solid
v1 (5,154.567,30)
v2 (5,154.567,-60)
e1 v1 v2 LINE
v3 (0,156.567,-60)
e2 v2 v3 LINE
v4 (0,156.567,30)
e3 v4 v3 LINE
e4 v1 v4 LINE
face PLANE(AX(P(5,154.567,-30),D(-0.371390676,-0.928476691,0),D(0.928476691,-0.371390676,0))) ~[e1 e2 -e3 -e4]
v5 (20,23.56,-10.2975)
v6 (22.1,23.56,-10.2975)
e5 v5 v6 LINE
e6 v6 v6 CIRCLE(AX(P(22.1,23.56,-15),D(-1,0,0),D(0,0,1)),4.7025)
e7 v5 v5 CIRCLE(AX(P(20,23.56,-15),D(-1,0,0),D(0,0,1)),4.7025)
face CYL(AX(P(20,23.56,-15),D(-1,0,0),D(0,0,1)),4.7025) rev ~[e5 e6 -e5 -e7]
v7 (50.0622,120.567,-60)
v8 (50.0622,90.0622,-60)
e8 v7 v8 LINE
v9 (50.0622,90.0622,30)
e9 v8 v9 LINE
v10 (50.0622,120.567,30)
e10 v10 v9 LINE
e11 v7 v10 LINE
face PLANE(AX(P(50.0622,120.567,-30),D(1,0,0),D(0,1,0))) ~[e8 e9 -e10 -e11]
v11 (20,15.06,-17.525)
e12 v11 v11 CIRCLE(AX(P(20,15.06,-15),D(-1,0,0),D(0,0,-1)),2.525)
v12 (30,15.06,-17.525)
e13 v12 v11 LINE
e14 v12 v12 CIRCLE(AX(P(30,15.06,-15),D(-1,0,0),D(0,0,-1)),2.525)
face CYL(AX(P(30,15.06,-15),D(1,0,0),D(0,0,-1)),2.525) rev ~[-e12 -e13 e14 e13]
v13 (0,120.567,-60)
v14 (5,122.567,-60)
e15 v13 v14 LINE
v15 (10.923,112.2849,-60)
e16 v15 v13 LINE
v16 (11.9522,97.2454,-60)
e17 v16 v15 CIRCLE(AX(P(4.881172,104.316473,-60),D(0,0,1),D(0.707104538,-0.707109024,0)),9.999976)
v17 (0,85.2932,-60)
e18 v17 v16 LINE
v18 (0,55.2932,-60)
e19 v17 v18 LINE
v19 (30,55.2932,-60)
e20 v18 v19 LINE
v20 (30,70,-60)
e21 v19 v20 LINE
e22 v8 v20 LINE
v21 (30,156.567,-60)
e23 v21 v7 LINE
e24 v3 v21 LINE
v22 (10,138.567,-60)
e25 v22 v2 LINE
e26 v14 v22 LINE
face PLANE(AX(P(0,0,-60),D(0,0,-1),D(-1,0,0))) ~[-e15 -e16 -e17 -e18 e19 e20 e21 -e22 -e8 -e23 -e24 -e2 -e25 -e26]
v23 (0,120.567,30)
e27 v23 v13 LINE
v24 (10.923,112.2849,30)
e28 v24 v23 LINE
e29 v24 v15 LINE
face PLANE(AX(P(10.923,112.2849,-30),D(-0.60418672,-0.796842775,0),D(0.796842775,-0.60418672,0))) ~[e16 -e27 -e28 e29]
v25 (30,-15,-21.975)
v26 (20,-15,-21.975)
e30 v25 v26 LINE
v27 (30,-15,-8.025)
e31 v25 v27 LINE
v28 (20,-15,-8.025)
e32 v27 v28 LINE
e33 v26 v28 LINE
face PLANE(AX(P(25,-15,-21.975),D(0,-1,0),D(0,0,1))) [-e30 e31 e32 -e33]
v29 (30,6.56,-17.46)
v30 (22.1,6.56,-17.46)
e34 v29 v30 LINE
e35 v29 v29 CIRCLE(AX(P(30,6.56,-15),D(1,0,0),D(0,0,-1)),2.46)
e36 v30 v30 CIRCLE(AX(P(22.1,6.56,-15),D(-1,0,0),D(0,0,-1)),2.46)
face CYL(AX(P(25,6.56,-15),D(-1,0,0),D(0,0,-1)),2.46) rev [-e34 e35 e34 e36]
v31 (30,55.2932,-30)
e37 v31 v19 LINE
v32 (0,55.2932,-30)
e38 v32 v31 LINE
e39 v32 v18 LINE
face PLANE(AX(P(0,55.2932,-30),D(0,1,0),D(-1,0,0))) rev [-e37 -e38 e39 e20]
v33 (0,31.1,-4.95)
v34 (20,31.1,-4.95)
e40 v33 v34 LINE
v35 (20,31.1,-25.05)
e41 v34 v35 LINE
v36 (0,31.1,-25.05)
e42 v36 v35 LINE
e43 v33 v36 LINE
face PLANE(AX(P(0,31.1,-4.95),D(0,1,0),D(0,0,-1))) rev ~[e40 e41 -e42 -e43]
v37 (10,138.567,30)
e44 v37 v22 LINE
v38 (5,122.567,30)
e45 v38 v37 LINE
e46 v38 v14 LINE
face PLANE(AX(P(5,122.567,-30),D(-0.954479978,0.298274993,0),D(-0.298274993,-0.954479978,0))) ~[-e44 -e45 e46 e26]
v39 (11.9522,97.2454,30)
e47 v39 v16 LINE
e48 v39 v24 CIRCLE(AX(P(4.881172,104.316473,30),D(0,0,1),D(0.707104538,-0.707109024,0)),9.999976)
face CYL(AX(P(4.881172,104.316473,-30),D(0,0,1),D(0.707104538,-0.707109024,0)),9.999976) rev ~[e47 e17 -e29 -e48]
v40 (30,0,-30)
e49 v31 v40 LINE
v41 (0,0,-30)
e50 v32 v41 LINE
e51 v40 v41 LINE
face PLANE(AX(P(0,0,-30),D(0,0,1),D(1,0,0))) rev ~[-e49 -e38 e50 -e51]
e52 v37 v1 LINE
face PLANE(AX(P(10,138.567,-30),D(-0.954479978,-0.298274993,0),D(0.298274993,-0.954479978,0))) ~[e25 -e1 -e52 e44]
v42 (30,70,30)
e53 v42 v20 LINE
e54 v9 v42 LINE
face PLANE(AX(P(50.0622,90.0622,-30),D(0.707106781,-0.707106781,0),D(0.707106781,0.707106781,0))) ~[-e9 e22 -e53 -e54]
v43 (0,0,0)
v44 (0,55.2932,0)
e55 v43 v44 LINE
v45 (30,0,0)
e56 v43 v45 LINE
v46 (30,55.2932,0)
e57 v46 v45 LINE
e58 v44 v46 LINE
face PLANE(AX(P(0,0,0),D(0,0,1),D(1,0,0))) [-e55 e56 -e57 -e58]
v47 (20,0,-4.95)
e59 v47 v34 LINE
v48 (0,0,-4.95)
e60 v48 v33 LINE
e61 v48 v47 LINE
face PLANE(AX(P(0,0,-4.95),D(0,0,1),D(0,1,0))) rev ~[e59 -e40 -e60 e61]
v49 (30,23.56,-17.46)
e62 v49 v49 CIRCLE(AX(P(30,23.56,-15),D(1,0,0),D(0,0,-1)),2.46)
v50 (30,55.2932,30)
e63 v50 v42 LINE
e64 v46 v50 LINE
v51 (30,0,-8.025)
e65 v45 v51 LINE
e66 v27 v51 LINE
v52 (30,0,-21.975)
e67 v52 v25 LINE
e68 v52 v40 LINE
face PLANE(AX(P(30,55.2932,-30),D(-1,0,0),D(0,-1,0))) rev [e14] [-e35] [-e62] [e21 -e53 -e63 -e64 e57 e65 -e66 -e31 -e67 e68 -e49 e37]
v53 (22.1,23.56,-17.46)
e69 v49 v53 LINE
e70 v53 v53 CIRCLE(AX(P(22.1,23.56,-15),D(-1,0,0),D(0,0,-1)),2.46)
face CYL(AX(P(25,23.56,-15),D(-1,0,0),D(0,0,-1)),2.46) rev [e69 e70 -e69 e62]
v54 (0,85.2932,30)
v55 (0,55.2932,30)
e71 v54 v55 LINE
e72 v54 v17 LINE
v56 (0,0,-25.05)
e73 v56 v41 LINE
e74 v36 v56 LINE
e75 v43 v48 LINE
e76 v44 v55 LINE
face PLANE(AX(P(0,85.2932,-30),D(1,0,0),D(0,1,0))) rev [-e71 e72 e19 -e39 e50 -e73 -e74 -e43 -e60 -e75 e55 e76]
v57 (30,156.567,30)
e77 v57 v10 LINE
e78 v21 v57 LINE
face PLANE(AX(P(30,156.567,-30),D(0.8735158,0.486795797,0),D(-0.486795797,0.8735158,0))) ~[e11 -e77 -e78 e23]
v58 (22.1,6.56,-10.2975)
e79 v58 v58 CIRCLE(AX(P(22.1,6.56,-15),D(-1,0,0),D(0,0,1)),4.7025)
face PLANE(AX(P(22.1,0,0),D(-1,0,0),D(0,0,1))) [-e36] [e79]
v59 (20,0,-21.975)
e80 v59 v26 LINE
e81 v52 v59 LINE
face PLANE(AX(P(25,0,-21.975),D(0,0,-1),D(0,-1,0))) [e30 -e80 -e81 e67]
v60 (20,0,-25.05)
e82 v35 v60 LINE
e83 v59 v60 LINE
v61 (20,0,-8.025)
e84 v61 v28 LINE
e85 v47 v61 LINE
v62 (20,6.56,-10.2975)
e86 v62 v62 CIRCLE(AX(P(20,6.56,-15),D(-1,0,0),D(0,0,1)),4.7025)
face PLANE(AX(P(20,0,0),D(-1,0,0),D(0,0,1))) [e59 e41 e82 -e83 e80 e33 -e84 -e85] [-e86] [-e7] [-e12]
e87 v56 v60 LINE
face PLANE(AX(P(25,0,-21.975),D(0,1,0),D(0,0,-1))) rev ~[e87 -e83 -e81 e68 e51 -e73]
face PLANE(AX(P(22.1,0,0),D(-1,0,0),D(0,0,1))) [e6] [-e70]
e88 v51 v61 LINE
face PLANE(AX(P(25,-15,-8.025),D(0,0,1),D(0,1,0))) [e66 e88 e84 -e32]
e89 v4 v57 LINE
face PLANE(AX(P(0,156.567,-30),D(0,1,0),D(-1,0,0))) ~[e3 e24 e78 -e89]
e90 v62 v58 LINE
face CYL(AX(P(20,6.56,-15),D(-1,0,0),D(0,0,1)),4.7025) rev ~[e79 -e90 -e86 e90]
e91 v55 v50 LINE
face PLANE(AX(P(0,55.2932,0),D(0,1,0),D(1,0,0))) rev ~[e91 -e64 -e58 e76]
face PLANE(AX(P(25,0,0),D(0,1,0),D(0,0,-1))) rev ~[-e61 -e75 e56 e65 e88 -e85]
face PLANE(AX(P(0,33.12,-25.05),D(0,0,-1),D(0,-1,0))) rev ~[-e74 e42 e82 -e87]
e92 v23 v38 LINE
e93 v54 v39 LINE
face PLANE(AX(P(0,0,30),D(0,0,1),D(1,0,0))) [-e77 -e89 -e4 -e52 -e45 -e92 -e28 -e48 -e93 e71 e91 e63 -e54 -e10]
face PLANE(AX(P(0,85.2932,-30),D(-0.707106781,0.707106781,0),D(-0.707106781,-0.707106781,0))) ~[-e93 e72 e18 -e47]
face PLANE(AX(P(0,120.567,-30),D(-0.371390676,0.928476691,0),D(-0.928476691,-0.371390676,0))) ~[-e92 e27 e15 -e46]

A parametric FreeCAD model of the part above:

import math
import FreeCAD as App
import Part
import Sketcher
from FreeCAD import Vector
Q = App.Units.Quantity

doc = App.newDocument("Part")
body = doc.addObject("PartDesign::Body", "Body")

# Sketch on XY plane
sketch1 = body.newObject("Sketcher::SketchObject", "Sketch")
sketch1.AttachmentSupport = (doc.getObject("XY_Plane"), [""])
sketch1.MapMode = "FlatFace"
sketch1.addGeometry(Part.LineSegment(Vector(0, 40, 0), Vector(0, 0, 0)), False)
sketch1.addGeometry(Part.LineSegment(Vector(0, 0, 0), Vector(25, 0, 0)), False)
sketch1.addGeometry(Part.LineSegment(Vector(25, 0, 0), Vector(25, 40, 0)), False)
sketch1.addGeometry(Part.LineSegment(Vector(25, 40, 0), Vector(0, 40, 0)), False)
sketch1.addConstraint(Sketcher.Constraint("Coincident", 0, 2, 1, 1))
sketch1.addConstraint(Sketcher.Constraint("Coincident", 1, 2, 2, 1))
sketch1.addConstraint(Sketcher.Constraint("Coincident", 2, 2, 3, 1))
sketch1.addConstraint(Sketcher.Constraint("Coincident", 3, 2, 0, 1))
sketch1.addConstraint(Sketcher.Constraint("Vertical", 0))
sketch1.addConstraint(Sketcher.Constraint("Horizontal", 1))
sketch1.addConstraint(Sketcher.Constraint("Vertical", 2))
sketch1.addConstraint(Sketcher.Constraint("Horizontal", 3))
sketch1.addConstraint(Sketcher.Constraint("Coincident", 0, 2, -1, 1))
sketch1.addConstraint(Sketcher.Constraint("DistanceX", 1, 1, 1, 2, 25.0))
sketch1.addConstraint(Sketcher.Constraint("DistanceY", 0, 2, 0, 1, 40.0))
pad1 = body.newObject("PartDesign::Pad", "Pad")
pad1.Profile = sketch1
pad1.Length = 30
pad1.Reversed = True

# Sketch on YZ plane
sketch2 = body.newObject("Sketcher::SketchObject", "Sketch001")
sketch2.AttachmentSupport = (doc.getObject("YZ_Plane"), [""])
sketch2.MapMode = "FlatFace"
sketch2.AttachmentOffset = App.Placement(Vector(0, 0, 25), App.Rotation())
sketch2.addGeometry(Part.Circle(Vector(6.6, -15, 0), Vector(0, 0, 1), 2.5), False)
sketch2.addConstraint(Sketcher.Constraint("Diameter", 0, 4.92))
sketch2.addConstraint(Sketcher.Constraint("DistanceY", 0, 3, -1, 1, 15.0))
sketch2.addConstraint(Sketcher.Constraint("DistanceX", -1, 1, 0, 3, 6.56))
pocket1 = body.newObject("PartDesign::Pocket", "Pocket")
pocket1.Profile = sketch2
pocket1.Length = 30

# Sketch on YZ plane
sketch3 = body.newObject("Sketcher::SketchObject", "Sketch002")
sketch3.AttachmentSupport = (doc.getObject("YZ_Plane"), [""])
sketch3.MapMode = "FlatFace"
sketch3.addGeometry(Part.LineSegment(Vector(0, -25, 0), Vector(0, -5, 0)), False)
sketch3.addGeometry(Part.LineSegment(Vector(0, -5, 0), Vector(33, -5, 0)), False)
sketch3.addGeometry(Part.LineSegment(Vector(33, -5, 0), Vector(33, -25, 0)), False)
sketch3.addGeometry(Part.LineSegment(Vector(33, -25, 0), Vector(0, -25, 0)), False)
sketch3.addConstraint(Sketcher.Constraint("Coincident", 0, 2, 1, 1))
sketch3.addConstraint(Sketcher.Constraint("Coincident", 1, 2, 2, 1))
sketch3.addConstraint(Sketcher.Constraint("Coincident", 2, 2, 3, 1))
sketch3.addConstraint(Sketcher.Constraint("Coincident", 3, 2, 0, 1))
sketch3.addConstraint(Sketcher.Constraint("Vertical", 0))
sketch3.addConstraint(Sketcher.Constraint("Horizontal", 1))
sketch3.addConstraint(Sketcher.Constraint("Vertical", 2))
sketch3.addConstraint(Sketcher.Constraint("Horizontal", 3))
sketch3.addConstraint(Sketcher.Constraint("PointOnObject", 0, 2, -2))
sketch3.addConstraint(Sketcher.Constraint("DistanceY", 0, 1, 0, 2, 20.1))
sketch3.addConstraint(Sketcher.Constraint("DistanceX", 1, 1, 1, 2, 33.12))
sketch3.addConstraint(Sketcher.Constraint("DistanceY", 0, 2, -1, 1, 4.95))
pocket2 = body.newObject("PartDesign::Pocket", "Pocket001")
pocket2.Profile = sketch3
pocket2.Length = 20
pocket2.Reversed = True

# Sketch on XZ plane
sketch4 = body.newObject("Sketcher::SketchObject", "Sketch003")
sketch4.AttachmentSupport = (doc.getObject("XZ_Plane"), [""])
sketch4.MapMode = "FlatFace"
sketch4.addGeometry(Part.LineSegment(Vector(25, -8, 0), Vector(20, -8, 0)), False)
sketch4.addGeometry(Part.LineSegment(Vector(20, -8, 0), Vector(20, -22, 0)), False)
sketch4.addGeometry(Part.LineSegment(Vector(20, -22, 0), Vector(25, -22, 0)), False)
sketch4.addGeometry(Part.LineSegment(Vector(25, -22, 0), Vector(25, -8, 0)), False)
sketch4.addConstraint(Sketcher.Constraint("Coincident", 0, 2, 1, 1))
sketch4.addConstraint(Sketcher.Constraint("Coincident", 1, 2, 2, 1))
sketch4.addConstraint(Sketcher.Constraint("Coincident", 2, 2, 3, 1))
sketch4.addConstraint(Sketcher.Constraint("Coincident", 3, 2, 0, 1))
sketch4.addConstraint(Sketcher.Constraint("Horizontal", 0))
sketch4.addConstraint(Sketcher.Constraint("Vertical", 1))
sketch4.addConstraint(Sketcher.Constraint("Horizontal", 2))
sketch4.addConstraint(Sketcher.Constraint("Vertical", 3))
sketch4.addConstraint(Sketcher.Constraint("DistanceY", 1, 2, 1, 1, 13.95))
sketch4.addConstraint(Sketcher.Constraint("DistanceX", 0, 2, 0, 1, 5.0))
sketch4.addConstraint(Sketcher.Constraint("DistanceX", -1, 1, 0, 2, 20.0))
sketch4.addConstraint(Sketcher.Constraint("DistanceY", 0, 2, -1, 1, 8.025))
pad2 = body.newObject("PartDesign::Pad", "Pad001")
pad2.Profile = sketch4
pad2.Length = 15

# Sketch on YZ plane
sketch5 = body.newObject("Sketcher::SketchObject", "Sketch004")
sketch5.AttachmentSupport = (doc.getObject("YZ_Plane"), [""])
sketch5.MapMode = "FlatFace"
sketch5.AttachmentOffset = App.Placement(Vector(0, 0, 20), App.Rotation())
sketch5.addGeometry(Part.Circle(Vector(6.6, -15, 0), Vector(0, 0, 1), 4.7), False)
sketch5.addGeometry(Part.Circle(Vector(6.6, -15, 0), Vector(0, 0, 1), 2.5), False)
sketch5.addConstraint(Sketcher.Constraint("Coincident", 1, 3, 0, 3))
sketch5.addConstraint(Sketcher.Constraint("Diameter", 0, 9.405))
sketch5.addConstraint(Sketcher.Constraint("Diameter", 1, 4.92))
sketch5.addConstraint(Sketcher.Constraint("DistanceY", 0, 3, -1, 1, 15.0))
sketch5.addConstraint(Sketcher.Constraint("DistanceX", -1, 1, 0, 3, 6.56))
pocket3 = body.newObject("PartDesign::Pocket", "Pocket002")
pocket3.Profile = sketch5
pocket3.Length = 2.1
pocket3.Reversed = True

# Sketch on YZ plane
sketch6 = body.newObject("Sketcher::SketchObject", "Sketch005")
sketch6.AttachmentSupport = (doc.getObject("YZ_Plane"), [""])
sketch6.MapMode = "FlatFace"
sketch6.AttachmentOffset = App.Placement(Vector(0, 0, 25), App.Rotation())
sketch6.addGeometry(Part.Circle(Vector(23.6, -15, 0), Vector(0, 0, 1), 2.5), False)
sketch6.addConstraint(Sketcher.Constraint("Diameter", 0, 4.92))
sketch6.addConstraint(Sketcher.Constraint("DistanceY", 0, 3, -1, 1, 15.0))
sketch6.addConstraint(Sketcher.Constraint("DistanceX", -1, 1, 0, 3, 23.56))
pocket4 = body.newObject("PartDesign::Pocket", "Pocket003")
pocket4.Profile = sketch6
pocket4.Length = 10

# Sketch on YZ plane
sketch7 = body.newObject("Sketcher::SketchObject", "Sketch006")
sketch7.AttachmentSupport = (doc.getObject("YZ_Plane"), [""])
sketch7.MapMode = "FlatFace"
sketch7.AttachmentOffset = App.Placement(Vector(0, 0, 20), App.Rotation())
sketch7.addGeometry(Part.Circle(Vector(23.6, -15, 0), Vector(0, 0, 1), 4.7), False)
sketch7.addGeometry(Part.Circle(Vector(23.6, -15, 0), Vector(0, 0, 1), 2.5), False)
sketch7.addConstraint(Sketcher.Constraint("Coincident", 1, 3, 0, 3))
sketch7.addConstraint(Sketcher.Constraint("Diameter", 0, 9.405))
sketch7.addConstraint(Sketcher.Constraint("Diameter", 1, 4.92))
sketch7.addConstraint(Sketcher.Constraint("DistanceY", 0, 3, -1, 1, 15.0))
sketch7.addConstraint(Sketcher.Constraint("DistanceX", -1, 1, 0, 3, 23.56))
pocket5 = body.newObject("PartDesign::Pocket", "Pocket004")
pocket5.Profile = sketch7
pocket5.Length = 2.1
pocket5.Reversed = True

# Sketch on YZ plane
sketch8 = body.newObject("Sketcher::SketchObject", "Sketch007")
sketch8.AttachmentSupport = (doc.getObject("YZ_Plane"), [""])
sketch8.MapMode = "FlatFace"
sketch8.AttachmentOffset = App.Placement(Vector(0, 0, 25), App.Rotation())
sketch8.addGeometry(Part.LineSegment(Vector(0, -30, 0), Vector(40, -30, 0)), False)
sketch8.addGeometry(Part.LineSegment(Vector(40, -30, 0), Vector(40, 0, 0)), False)
sketch8.addGeometry(Part.LineSegment(Vector(40, 0, 0), Vector(0, 0, 0)), False)
sketch8.addGeometry(Part.LineSegment(Vector(0, 0, 0), Vector(0, -8, 0)), False)
sketch8.addGeometry(Part.LineSegment(Vector(0, -8, 0), Vector(-15, -8, 0)), False)
sketch8.addGeometry(Part.LineSegment(Vector(-15, -8, 0), Vector(-15, -22, 0)), False)
sketch8.addGeometry(Part.LineSegment(Vector(-15, -22, 0), Vector(0, -22, 0)), False)
sketch8.addGeometry(Part.LineSegment(Vector(0, -22, 0), Vector(0, -30, 0)), False)
sketch8.addGeometry(Part.Circle(Vector(6.6, -15, 0), Vector(0, 0, 1), 2.5), False)
sketch8.addGeometry(Part.Circle(Vector(23.6, -15, 0), Vector(0, 0, 1), 2.5), False)
sketch8.addConstraint(Sketcher.Constraint("Coincident", 0, 2, 1, 1))
sketch8.addConstraint(Sketcher.Constraint("Coincident", 1, 2, 2, 1))
sketch8.addConstraint(Sketcher.Constraint("Coincident", 2, 2, 3, 1))
sketch8.addConstraint(Sketcher.Constraint("Coincident", 3, 2, 4, 1))
sketch8.addConstraint(Sketcher.Constraint("Coincident", 4, 2, 5, 1))
sketch8.addConstraint(Sketcher.Constraint("Coincident", 5, 2, 6, 1))
sketch8.addConstraint(Sketcher.Constraint("Coincident", 6, 2, 7, 1))
sketch8.addConstraint(Sketcher.Constraint("Coincident", 7, 2, 0, 1))
sketch8.addConstraint(Sketcher.Constraint("Horizontal", 0))
sketch8.addConstraint(Sketcher.Constraint("Vertical", 1))
sketch8.addConstraint(Sketcher.Constraint("Horizontal", 2))
sketch8.addConstraint(Sketcher.Constraint("Vertical", 3))
sketch8.addConstraint(Sketcher.Constraint("Horizontal", 4))
sketch8.addConstraint(Sketcher.Constraint("Vertical", 5))
sketch8.addConstraint(Sketcher.Constraint("Horizontal", 6))
sketch8.addConstraint(Sketcher.Constraint("Vertical", 7))
sketch8.addConstraint(Sketcher.Constraint("Coincident", 2, 2, -1, 1))
sketch8.addConstraint(Sketcher.Constraint("Equal", 8, 9))
sketch8.addConstraint(Sketcher.Constraint("PointOnObject", 6, 2, -2))
sketch8.addConstraint(Sketcher.Constraint("Horizontal", 8, 3, 9, 3))
sketch8.addConstraint(Sketcher.Constraint("Equal", 3, 7))
sketch8.addConstraint(Sketcher.Constraint("Diameter", 8, 4.92))
sketch8.addConstraint(Sketcher.Constraint("DistanceX", 0, 1, 0, 2, 40.0))
sketch8.addConstraint(Sketcher.Constraint("DistanceX", 4, 2, 4, 1, 15.0))
sketch8.addConstraint(Sketcher.Constraint("DistanceY", 1, 1, 1, 2, 30.0))
sketch8.addConstraint(Sketcher.Constraint("DistanceY", 8, 3, -1, 1, 15.0))
sketch8.addConstraint(Sketcher.Constraint("DistanceX", 8, 3, 9, 3, 17.0))
sketch8.addConstraint(Sketcher.Constraint("DistanceY", 5, 2, 5, 1, 13.95))
sketch8.addConstraint(Sketcher.Constraint("DistanceX", -1, 1, 8, 3, 6.56))
pad3 = body.newObject("PartDesign::Pad", "Pad002")
pad3.Profile = sketch8
pad3.Length = 5

# Sketch on XZ plane
sketch9 = body.newObject("Sketcher::SketchObject", "Sketch008")
sketch9.AttachmentSupport = (doc.getObject("XZ_Plane"), [""])
sketch9.MapMode = "FlatFace"
sketch9.AttachmentOffset = App.Placement(Vector(0, 0, -40), App.Rotation())
sketch9.addGeometry(Part.LineSegment(Vector(30, -30, 0), Vector(0, -30, 0)), False)
sketch9.addGeometry(Part.LineSegment(Vector(0, -30, 0), Vector(0, 0, 0)), False)
sketch9.addGeometry(Part.LineSegment(Vector(0, 0, 0), Vector(30, 0, 0)), False)
sketch9.addGeometry(Part.LineSegment(Vector(30, 0, 0), Vector(30, -30, 0)), False)
sketch9.addConstraint(Sketcher.Constraint("Coincident", 0, 2, 1, 1))
sketch9.addConstraint(Sketcher.Constraint("Coincident", 1, 2, 2, 1))
sketch9.addConstraint(Sketcher.Constraint("Coincident", 2, 2, 3, 1))
sketch9.addConstraint(Sketcher.Constraint("Coincident", 3, 2, 0, 1))
sketch9.addConstraint(Sketcher.Constraint("Horizontal", 0))
sketch9.addConstraint(Sketcher.Constraint("Vertical", 1))
sketch9.addConstraint(Sketcher.Constraint("Horizontal", 2))
sketch9.addConstraint(Sketcher.Constraint("Vertical", 3))
sketch9.addConstraint(Sketcher.Constraint("Coincident", 1, 2, -1, 1))
sketch9.addConstraint(Sketcher.Constraint("Equal", 2, 1))
sketch9.addConstraint(Sketcher.Constraint("DistanceX", 0, 2, 0, 1, 30.0))
pad4 = body.newObject("PartDesign::Pad", "Pad003")
pad4.Profile = sketch9
pad4.Length = 30
pad4.Reversed = True

# Sketch on YZ plane
sketch10 = body.newObject("Sketcher::SketchObject", "Sketch009")
sketch10.AttachmentSupport = (doc.getObject("YZ_Plane"), [""])
sketch10.MapMode = "FlatFace"
sketch10.AttachmentOffset = App.Placement(Vector(0, 0, 30), App.Rotation())
sketch10.addGeometry(Part.Circle(Vector(15.1, -15, 0), Vector(0, 0, 1), 2.5), False)
sketch10.addConstraint(Sketcher.Constraint("Diameter", 0, 5.05))
sketch10.addConstraint(Sketcher.Constraint("DistanceY", 0, 3, -1, 1, 15.0))
sketch10.addConstraint(Sketcher.Constraint("DistanceX", -1, 1, 0, 3, 15.06))
pocket6 = body.newObject("PartDesign::Pocket", "Pocket005")
pocket6.Profile = sketch10
pocket6.Length = 30

# Sketch on YZ plane
sketch11 = body.newObject("Sketcher::SketchObject", "Sketch010")
sketch11.AttachmentSupport = (doc.getObject("YZ_Plane"), [""])
sketch11.MapMode = "FlatFace"
sketch11.addGeometry(Part.LineSegment(Vector(33.1, -5, 0), Vector(33.1, -25.1, 0)), False)
sketch11.addGeometry(Part.LineSegment(Vector(33.1, -25.1, 0), Vector(31.1, -25.1, 0)), False)
sketch11.addGeometry(Part.LineSegment(Vector(31.1, -25.1, 0), Vector(31.1, -5, 0)), False)
sketch11.addGeometry(Part.LineSegment(Vector(31.1, -5, 0), Vector(33.1, -5, 0)), False)
sketch11.addConstraint(Sketcher.Constraint("Coincident", 0, 2, 1, 1))
sketch11.addConstraint(Sketcher.Constraint("Coincident", 1, 2, 2, 1))
sketch11.addConstraint(Sketcher.Constraint("Coincident", 2, 2, 3, 1))
sketch11.addConstraint(Sketcher.Constraint("Coincident", 3, 2, 0, 1))
sketch11.addConstraint(Sketcher.Constraint("Vertical", 0))
sketch11.addConstraint(Sketcher.Constraint("Horizontal", 1))
sketch11.addConstraint(Sketcher.Constraint("Vertical", 2))
sketch11.addConstraint(Sketcher.Constraint("Horizontal", 3))
sketch11.addConstraint(Sketcher.Constraint("DistanceX", 1, 2, 1, 1, 2.02))
sketch11.addConstraint(Sketcher.Constraint("DistanceY", 0, 2, 0, 1, 20.1))
sketch11.addConstraint(Sketcher.Constraint("DistanceX", -1, 1, 1, 2, 31.1))
sketch11.addConstraint(Sketcher.Constraint("DistanceY", 0, 2, -1, 1, 25.05))
pad5 = body.newObject("PartDesign::Pad", "Pad004")
pad5.Profile = sketch11
pad5.Length = 20

# Sketch on XY plane
sketch12 = body.newObject("Sketcher::SketchObject", "Sketch011")
sketch12.AttachmentSupport = (doc.getObject("XY_Plane"), [""])
sketch12.MapMode = "FlatFace"
sketch12.addGeometry(Part.LineSegment(Vector(0, 85, 0), Vector(0, 70, 0)), False)
sketch12.addGeometry(Part.LineSegment(Vector(0, 70, 0), Vector(30, 70, 0)), False)
sketch12.addGeometry(Part.LineSegment(Vector(30, 70, 0), Vector(50, 90, 0)), False)
sketch12.addGeometry(Part.LineSegment(Vector(50, 90, 0), Vector(50, 121, 0)), False)
sketch12.addGeometry(Part.LineSegment(Vector(50, 121, 0), Vector(30, 157, 0)), False)
sketch12.addGeometry(Part.LineSegment(Vector(30, 157, 0), Vector(0, 157, 0)), False)
sketch12.addGeometry(Part.LineSegment(Vector(0, 157, 0), Vector(5, 155, 0)), False)
sketch12.addGeometry(Part.LineSegment(Vector(5, 155, 0), Vector(10, 139, 0)), False)
sketch12.addGeometry(Part.LineSegment(Vector(10, 139, 0), Vector(5, 123, 0)), False)
sketch12.addGeometry(Part.LineSegment(Vector(5, 123, 0), Vector(0, 121, 0)), False)
sketch12.addGeometry(Part.LineSegment(Vector(0, 121, 0), Vector(11, 112, 0)), False)
sketch12.addGeometry(Part.ArcOfCircle(Part.Circle(Vector(5, 104, 0), Vector(0, 0, 1), 10), math.radians(-45), math.radians(53)), False)
sketch12.addGeometry(Part.LineSegment(Vector(12, 97, 0), Vector(0, 85, 0)), False)
sketch12.addConstraint(Sketcher.Constraint("Coincident", 0, 2, 1, 1))
sketch12.addConstraint(Sketcher.Constraint("Coincident", 1, 2, 2, 1))
sketch12.addConstraint(Sketcher.Constraint("Coincident", 2, 2, 3, 1))
sketch12.addConstraint(Sketcher.Constraint("Coincident", 3, 2, 4, 1))
sketch12.addConstraint(Sketcher.Constraint("Coincident", 4, 2, 5, 1))
sketch12.addConstraint(Sketcher.Constraint("Coincident", 5, 2, 6, 1))
sketch12.addConstraint(Sketcher.Constraint("Coincident", 6, 2, 7, 1))
sketch12.addConstraint(Sketcher.Constraint("Coincident", 7, 2, 8, 1))
sketch12.addConstraint(Sketcher.Constraint("Coincident", 8, 2, 9, 1))
sketch12.addConstraint(Sketcher.Constraint("Coincident", 9, 2, 10, 1))
sketch12.addConstraint(Sketcher.Constraint("Tangent", 10, 2, 11, 2))
sketch12.addConstraint(Sketcher.Constraint("Tangent", 11, 1, 12, 1))
sketch12.addConstraint(Sketcher.Constraint("Coincident", 12, 2, 0, 1))
sketch12.addConstraint(Sketcher.Constraint("Vertical", 0))
sketch12.addConstraint(Sketcher.Constraint("Horizontal", 1))
sketch12.addConstraint(Sketcher.Constraint("Vertical", 3))
sketch12.addConstraint(Sketcher.Constraint("Horizontal", 5))
sketch12.addConstraint(Sketcher.Constraint("PointOnObject", 0, 2, -2))
sketch12.addConstraint(Sketcher.Constraint("PointOnObject", 5, 2, -2))
sketch12.addConstraint(Sketcher.Constraint("PointOnObject", 9, 2, -2))
sketch12.addConstraint(Sketcher.Constraint("Parallel", 2, 12))
sketch12.addConstraint(Sketcher.Constraint("Horizontal", 3, 2, 9, 2))
sketch12.addConstraint(Sketcher.Constraint("Vertical", 1, 2, 4, 2))
sketch12.addConstraint(Sketcher.Constraint("Vertical", 6, 2, 8, 2))
sketch12.addConstraint(Sketcher.Constraint("Equal", 7, 8))
sketch12.addConstraint(Sketcher.Constraint("Equal", 6, 9))
sketch12.addConstraint(Sketcher.Constraint("Radius", 11, 10.0))
sketch12.addConstraint(Sketcher.Constraint("Angle", 2, Q("45 deg")))
sketch12.addConstraint(Sketcher.Constraint("DistanceX", -1, 1, 7, 2, 10.0))
sketch12.addConstraint(Sketcher.Constraint("DistanceX", 1, 1, 1, 2, 30.0))
sketch12.addConstraint(Sketcher.Constraint("DistanceY", -1, 1, 0, 2, 70.0))
sketch12.addConstraint(Sketcher.Constraint("DistanceX", -1, 1, 6, 2, 5.0))
sketch12.addConstraint(Sketcher.Constraint("DistanceY", 3, 2, 4, 2, 36.0))
sketch12.addConstraint(Sketcher.Constraint("DistanceY", 6, 2, 5, 2, 2.0))
sketch12.addConstraint(Sketcher.Constraint("Angle", 4, Q("119.1302 deg")))
sketch12.addConstraint(Sketcher.Constraint("Angle", 10, Q("-37.1703 deg")))
sketch12.addConstraint(Sketcher.Constraint("Distance", 12, 16.903))
sketch12.addConstraint(Sketcher.Constraint("DistanceY", 0, 2, 0, 1, 15.2932))
pad6 = body.newObject("PartDesign::Pad", "Pad005")
pad6.Profile = sketch12
pad6.Length = 30
pad6.Reversed = True

# Sketch on XY plane
sketch13 = body.newObject("Sketcher::SketchObject", "Sketch012")
sketch13.AttachmentSupport = (doc.getObject("XY_Plane"), [""])
sketch13.MapMode = "FlatFace"
sketch13.addGeometry(Part.LineSegment(Vector(30, 70, 0), Vector(50, 90, 0)), False)
sketch13.addGeometry(Part.LineSegment(Vector(50, 90, 0), Vector(50, 121, 0)), False)
sketch13.addGeometry(Part.LineSegment(Vector(50, 121, 0), Vector(30, 157, 0)), False)
sketch13.addGeometry(Part.LineSegment(Vector(30, 157, 0), Vector(0, 157, 0)), False)
sketch13.addGeometry(Part.LineSegment(Vector(0, 157, 0), Vector(5, 155, 0)), False)
sketch13.addGeometry(Part.LineSegment(Vector(5, 155, 0), Vector(10, 139, 0)), False)
sketch13.addGeometry(Part.LineSegment(Vector(10, 139, 0), Vector(5, 123, 0)), False)
sketch13.addGeometry(Part.LineSegment(Vector(5, 123, 0), Vector(0, 121, 0)), False)
sketch13.addGeometry(Part.LineSegment(Vector(0, 121, 0), Vector(11, 112, 0)), False)
sketch13.addGeometry(Part.ArcOfCircle(Part.Circle(Vector(5, 104, 0), Vector(0, 0, 1), 10), math.radians(-45), math.radians(53)), False)
sketch13.addGeometry(Part.LineSegment(Vector(12, 97, 0), Vector(0, 85, 0)), False)
sketch13.addGeometry(Part.LineSegment(Vector(0, 85, 0), Vector(0, 55, 0)), False)
sketch13.addGeometry(Part.LineSegment(Vector(0, 55, 0), Vector(30, 55, 0)), False)
sketch13.addGeometry(Part.LineSegment(Vector(30, 55, 0), Vector(30, 70, 0)), False)
sketch13.addConstraint(Sketcher.Constraint("Coincident", 0, 2, 1, 1))
sketch13.addConstraint(Sketcher.Constraint("Coincident", 1, 2, 2, 1))
sketch13.addConstraint(Sketcher.Constraint("Coincident", 2, 2, 3, 1))
sketch13.addConstraint(Sketcher.Constraint("Coincident", 3, 2, 4, 1))
sketch13.addConstraint(Sketcher.Constraint("Coincident", 4, 2, 5, 1))
sketch13.addConstraint(Sketcher.Constraint("Coincident", 5, 2, 6, 1))
sketch13.addConstraint(Sketcher.Constraint("Coincident", 6, 2, 7, 1))
sketch13.addConstraint(Sketcher.Constraint("Coincident", 7, 2, 8, 1))
sketch13.addConstraint(Sketcher.Constraint("Tangent", 8, 2, 9, 2))
sketch13.addConstraint(Sketcher.Constraint("Tangent", 9, 1, 10, 1))
sketch13.addConstraint(Sketcher.Constraint("Coincident", 10, 2, 11, 1))
sketch13.addConstraint(Sketcher.Constraint("Coincident", 11, 2, 12, 1))
sketch13.addConstraint(Sketcher.Constraint("Coincident", 12, 2, 13, 1))
sketch13.addConstraint(Sketcher.Constraint("Coincident", 13, 2, 0, 1))
sketch13.addConstraint(Sketcher.Constraint("Vertical", 1))
sketch13.addConstraint(Sketcher.Constraint("Horizontal", 3))
sketch13.addConstraint(Sketcher.Constraint("Vertical", 11))
sketch13.addConstraint(Sketcher.Constraint("Horizontal", 12))
sketch13.addConstraint(Sketcher.Constraint("Vertical", 13))
sketch13.addConstraint(Sketcher.Constraint("PointOnObject", 3, 2, -2))
sketch13.addConstraint(Sketcher.Constraint("PointOnObject", 7, 2, -2))
sketch13.addConstraint(Sketcher.Constraint("PointOnObject", 10, 2, -2))
sketch13.addConstraint(Sketcher.Constraint("Parallel", 0, 10))
sketch13.addConstraint(Sketcher.Constraint("Horizontal", 1, 2, 7, 2))
sketch13.addConstraint(Sketcher.Constraint("Vertical", 4, 2, 6, 2))
sketch13.addConstraint(Sketcher.Constraint("Vertical", 2, 2, 12, 2))
sketch13.addConstraint(Sketcher.Constraint("Equal", 12, 11))
sketch13.addConstraint(Sketcher.Constraint("Equal", 5, 6))
sketch13.addConstraint(Sketcher.Constraint("Equal", 4, 7))
sketch13.addConstraint(Sketcher.Constraint("DistanceX", 3, 2, 3, 1, 30.0))
sketch13.addConstraint(Sketcher.Constraint("Radius", 9, 10.0))
sketch13.addConstraint(Sketcher.Constraint("Angle", 0, Q("45 deg")))
sketch13.addConstraint(Sketcher.Constraint("DistanceX", -1, 1, 4, 2, 5.0))
sketch13.addConstraint(Sketcher.Constraint("DistanceX", -1, 1, 5, 2, 10.0))
sketch13.addConstraint(Sketcher.Constraint("DistanceY", -1, 1, 13, 2, 70.0))
sketch13.addConstraint(Sketcher.Constraint("DistanceY", 1, 2, 2, 2, 36.0))
sketch13.addConstraint(Sketcher.Constraint("DistanceY", 4, 2, 3, 2, 2.0))
sketch13.addConstraint(Sketcher.Constraint("Angle", 2, Q("119.1302 deg")))
sketch13.addConstraint(Sketcher.Constraint("Angle", 8, Q("-37.1703 deg")))
sketch13.addConstraint(Sketcher.Constraint("DistanceX", 9, 1, 0, 2, 38.11))
sketch13.addConstraint(Sketcher.Constraint("DistanceY", 1, 1, 1, 2, 30.5048))
pad7 = body.newObject("PartDesign::Pad", "Pad006")
pad7.Profile = sketch13
pad7.Length = 30
doc.recompute()

datumplane = body.newObject("PartDesign::Plane", "DatumPlane")
datumplane.AttachmentSupport = (doc.getObject("XY_Plane"), [""])
datumplane.MapMode = "FlatFace"
datumplane.AttachmentOffset = App.Placement(Vector(0, 0, -15), App.Rotation())
mirrored = body.newObject("PartDesign::Mirrored", "Mirrored")
mirrored.Originals = [pad7]
mirrored.MirrorPlane = (datumplane, [""])
body.Tip = mirrored

doc.recompute()
